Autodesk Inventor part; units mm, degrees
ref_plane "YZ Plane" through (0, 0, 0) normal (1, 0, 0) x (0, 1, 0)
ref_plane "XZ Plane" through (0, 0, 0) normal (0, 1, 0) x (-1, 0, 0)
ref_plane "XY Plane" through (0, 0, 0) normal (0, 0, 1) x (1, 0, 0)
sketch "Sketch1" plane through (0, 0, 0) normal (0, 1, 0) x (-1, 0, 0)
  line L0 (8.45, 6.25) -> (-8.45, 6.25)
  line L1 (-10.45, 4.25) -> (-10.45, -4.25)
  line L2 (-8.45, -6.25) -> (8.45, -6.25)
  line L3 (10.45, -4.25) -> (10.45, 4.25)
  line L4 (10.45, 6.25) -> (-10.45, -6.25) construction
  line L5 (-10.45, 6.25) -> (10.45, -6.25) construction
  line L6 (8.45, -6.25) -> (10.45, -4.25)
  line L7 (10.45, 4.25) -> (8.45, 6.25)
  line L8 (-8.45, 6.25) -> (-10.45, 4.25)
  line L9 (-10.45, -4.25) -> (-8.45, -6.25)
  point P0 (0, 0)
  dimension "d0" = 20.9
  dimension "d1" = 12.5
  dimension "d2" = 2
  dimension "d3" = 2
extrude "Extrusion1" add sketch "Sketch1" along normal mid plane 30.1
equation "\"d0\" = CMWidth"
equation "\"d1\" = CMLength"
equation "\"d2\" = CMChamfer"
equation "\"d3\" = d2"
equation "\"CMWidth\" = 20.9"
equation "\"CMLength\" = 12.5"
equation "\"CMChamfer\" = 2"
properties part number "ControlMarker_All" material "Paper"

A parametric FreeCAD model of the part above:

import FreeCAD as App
import Part
import Sketcher
Q = App.Units.Quantity


def add_polygon(sketch, points):
    """Adds a closed chain of lines whose ends are joined by coincident constraints."""
    first, n = sketch.GeometryCount, len(points)
    for a, b in zip(points, points[1:] + points[:1]):
        sketch.addGeometry(Part.LineSegment(App.Vector(*a, 0), App.Vector(*b, 0)), False)
    for i in range(n):
        sketch.addConstraint(Sketcher.Constraint("Coincident", first + i, 2, first + (i + 1) % n, 1))

doc = App.newDocument("Part")
body = doc.addObject("PartDesign::Body", "Body")

sketch1 = body.newObject("Sketcher::SketchObject", "Sketch")
sketch1.AttachmentSupport = (doc.getObject("XZ_Plane"), [""])
sketch1.MapMode = "FlatFace"
add_polygon(sketch1, [(-10.4, 4.2), (-8.4, 6.2), (8.4, 6.2), (10.4, 4.2), (10.4, -4.2), (8.4, -6.2), (-8.4, -6.2), (-10.4, -4.2)])
sketch1.addConstraint([
    Sketcher.Constraint("Horizontal", 1),
    Sketcher.Constraint("Vertical", 3),
    Sketcher.Constraint("Horizontal", 5),
    Sketcher.Constraint("Vertical", 7),
    Sketcher.Constraint("Symmetric", 0, 2, 4, 2, -1, 1),
    Sketcher.Constraint("Symmetric", 2, 2, 6, 2, -1, 1),
    Sketcher.Constraint("Perpendicular", 0, 2),
    Sketcher.Constraint("Perpendicular", 2, 4),
    Sketcher.Constraint("Perpendicular", 4, 6),
    Sketcher.Constraint("Horizontal", 3, 2, 6, 2),
    Sketcher.Constraint("Vertical", 1, 2, 4, 2),
    Sketcher.Constraint("DistanceX", 1, 2, 2, 2, Q("2 mm")),
    Sketcher.Constraint("DistanceY", 4, 2, 1, 2, Q("12.5 mm")),
    Sketcher.Constraint("DistanceX", 6, 2, 3, 2, Q("20.9 mm")),
])
pad1 = body.newObject("PartDesign::Pad", "Pad")
pad1.Profile = sketch1
pad1.Length = 30.1
pad1.Midplane = True

doc.recompute()
